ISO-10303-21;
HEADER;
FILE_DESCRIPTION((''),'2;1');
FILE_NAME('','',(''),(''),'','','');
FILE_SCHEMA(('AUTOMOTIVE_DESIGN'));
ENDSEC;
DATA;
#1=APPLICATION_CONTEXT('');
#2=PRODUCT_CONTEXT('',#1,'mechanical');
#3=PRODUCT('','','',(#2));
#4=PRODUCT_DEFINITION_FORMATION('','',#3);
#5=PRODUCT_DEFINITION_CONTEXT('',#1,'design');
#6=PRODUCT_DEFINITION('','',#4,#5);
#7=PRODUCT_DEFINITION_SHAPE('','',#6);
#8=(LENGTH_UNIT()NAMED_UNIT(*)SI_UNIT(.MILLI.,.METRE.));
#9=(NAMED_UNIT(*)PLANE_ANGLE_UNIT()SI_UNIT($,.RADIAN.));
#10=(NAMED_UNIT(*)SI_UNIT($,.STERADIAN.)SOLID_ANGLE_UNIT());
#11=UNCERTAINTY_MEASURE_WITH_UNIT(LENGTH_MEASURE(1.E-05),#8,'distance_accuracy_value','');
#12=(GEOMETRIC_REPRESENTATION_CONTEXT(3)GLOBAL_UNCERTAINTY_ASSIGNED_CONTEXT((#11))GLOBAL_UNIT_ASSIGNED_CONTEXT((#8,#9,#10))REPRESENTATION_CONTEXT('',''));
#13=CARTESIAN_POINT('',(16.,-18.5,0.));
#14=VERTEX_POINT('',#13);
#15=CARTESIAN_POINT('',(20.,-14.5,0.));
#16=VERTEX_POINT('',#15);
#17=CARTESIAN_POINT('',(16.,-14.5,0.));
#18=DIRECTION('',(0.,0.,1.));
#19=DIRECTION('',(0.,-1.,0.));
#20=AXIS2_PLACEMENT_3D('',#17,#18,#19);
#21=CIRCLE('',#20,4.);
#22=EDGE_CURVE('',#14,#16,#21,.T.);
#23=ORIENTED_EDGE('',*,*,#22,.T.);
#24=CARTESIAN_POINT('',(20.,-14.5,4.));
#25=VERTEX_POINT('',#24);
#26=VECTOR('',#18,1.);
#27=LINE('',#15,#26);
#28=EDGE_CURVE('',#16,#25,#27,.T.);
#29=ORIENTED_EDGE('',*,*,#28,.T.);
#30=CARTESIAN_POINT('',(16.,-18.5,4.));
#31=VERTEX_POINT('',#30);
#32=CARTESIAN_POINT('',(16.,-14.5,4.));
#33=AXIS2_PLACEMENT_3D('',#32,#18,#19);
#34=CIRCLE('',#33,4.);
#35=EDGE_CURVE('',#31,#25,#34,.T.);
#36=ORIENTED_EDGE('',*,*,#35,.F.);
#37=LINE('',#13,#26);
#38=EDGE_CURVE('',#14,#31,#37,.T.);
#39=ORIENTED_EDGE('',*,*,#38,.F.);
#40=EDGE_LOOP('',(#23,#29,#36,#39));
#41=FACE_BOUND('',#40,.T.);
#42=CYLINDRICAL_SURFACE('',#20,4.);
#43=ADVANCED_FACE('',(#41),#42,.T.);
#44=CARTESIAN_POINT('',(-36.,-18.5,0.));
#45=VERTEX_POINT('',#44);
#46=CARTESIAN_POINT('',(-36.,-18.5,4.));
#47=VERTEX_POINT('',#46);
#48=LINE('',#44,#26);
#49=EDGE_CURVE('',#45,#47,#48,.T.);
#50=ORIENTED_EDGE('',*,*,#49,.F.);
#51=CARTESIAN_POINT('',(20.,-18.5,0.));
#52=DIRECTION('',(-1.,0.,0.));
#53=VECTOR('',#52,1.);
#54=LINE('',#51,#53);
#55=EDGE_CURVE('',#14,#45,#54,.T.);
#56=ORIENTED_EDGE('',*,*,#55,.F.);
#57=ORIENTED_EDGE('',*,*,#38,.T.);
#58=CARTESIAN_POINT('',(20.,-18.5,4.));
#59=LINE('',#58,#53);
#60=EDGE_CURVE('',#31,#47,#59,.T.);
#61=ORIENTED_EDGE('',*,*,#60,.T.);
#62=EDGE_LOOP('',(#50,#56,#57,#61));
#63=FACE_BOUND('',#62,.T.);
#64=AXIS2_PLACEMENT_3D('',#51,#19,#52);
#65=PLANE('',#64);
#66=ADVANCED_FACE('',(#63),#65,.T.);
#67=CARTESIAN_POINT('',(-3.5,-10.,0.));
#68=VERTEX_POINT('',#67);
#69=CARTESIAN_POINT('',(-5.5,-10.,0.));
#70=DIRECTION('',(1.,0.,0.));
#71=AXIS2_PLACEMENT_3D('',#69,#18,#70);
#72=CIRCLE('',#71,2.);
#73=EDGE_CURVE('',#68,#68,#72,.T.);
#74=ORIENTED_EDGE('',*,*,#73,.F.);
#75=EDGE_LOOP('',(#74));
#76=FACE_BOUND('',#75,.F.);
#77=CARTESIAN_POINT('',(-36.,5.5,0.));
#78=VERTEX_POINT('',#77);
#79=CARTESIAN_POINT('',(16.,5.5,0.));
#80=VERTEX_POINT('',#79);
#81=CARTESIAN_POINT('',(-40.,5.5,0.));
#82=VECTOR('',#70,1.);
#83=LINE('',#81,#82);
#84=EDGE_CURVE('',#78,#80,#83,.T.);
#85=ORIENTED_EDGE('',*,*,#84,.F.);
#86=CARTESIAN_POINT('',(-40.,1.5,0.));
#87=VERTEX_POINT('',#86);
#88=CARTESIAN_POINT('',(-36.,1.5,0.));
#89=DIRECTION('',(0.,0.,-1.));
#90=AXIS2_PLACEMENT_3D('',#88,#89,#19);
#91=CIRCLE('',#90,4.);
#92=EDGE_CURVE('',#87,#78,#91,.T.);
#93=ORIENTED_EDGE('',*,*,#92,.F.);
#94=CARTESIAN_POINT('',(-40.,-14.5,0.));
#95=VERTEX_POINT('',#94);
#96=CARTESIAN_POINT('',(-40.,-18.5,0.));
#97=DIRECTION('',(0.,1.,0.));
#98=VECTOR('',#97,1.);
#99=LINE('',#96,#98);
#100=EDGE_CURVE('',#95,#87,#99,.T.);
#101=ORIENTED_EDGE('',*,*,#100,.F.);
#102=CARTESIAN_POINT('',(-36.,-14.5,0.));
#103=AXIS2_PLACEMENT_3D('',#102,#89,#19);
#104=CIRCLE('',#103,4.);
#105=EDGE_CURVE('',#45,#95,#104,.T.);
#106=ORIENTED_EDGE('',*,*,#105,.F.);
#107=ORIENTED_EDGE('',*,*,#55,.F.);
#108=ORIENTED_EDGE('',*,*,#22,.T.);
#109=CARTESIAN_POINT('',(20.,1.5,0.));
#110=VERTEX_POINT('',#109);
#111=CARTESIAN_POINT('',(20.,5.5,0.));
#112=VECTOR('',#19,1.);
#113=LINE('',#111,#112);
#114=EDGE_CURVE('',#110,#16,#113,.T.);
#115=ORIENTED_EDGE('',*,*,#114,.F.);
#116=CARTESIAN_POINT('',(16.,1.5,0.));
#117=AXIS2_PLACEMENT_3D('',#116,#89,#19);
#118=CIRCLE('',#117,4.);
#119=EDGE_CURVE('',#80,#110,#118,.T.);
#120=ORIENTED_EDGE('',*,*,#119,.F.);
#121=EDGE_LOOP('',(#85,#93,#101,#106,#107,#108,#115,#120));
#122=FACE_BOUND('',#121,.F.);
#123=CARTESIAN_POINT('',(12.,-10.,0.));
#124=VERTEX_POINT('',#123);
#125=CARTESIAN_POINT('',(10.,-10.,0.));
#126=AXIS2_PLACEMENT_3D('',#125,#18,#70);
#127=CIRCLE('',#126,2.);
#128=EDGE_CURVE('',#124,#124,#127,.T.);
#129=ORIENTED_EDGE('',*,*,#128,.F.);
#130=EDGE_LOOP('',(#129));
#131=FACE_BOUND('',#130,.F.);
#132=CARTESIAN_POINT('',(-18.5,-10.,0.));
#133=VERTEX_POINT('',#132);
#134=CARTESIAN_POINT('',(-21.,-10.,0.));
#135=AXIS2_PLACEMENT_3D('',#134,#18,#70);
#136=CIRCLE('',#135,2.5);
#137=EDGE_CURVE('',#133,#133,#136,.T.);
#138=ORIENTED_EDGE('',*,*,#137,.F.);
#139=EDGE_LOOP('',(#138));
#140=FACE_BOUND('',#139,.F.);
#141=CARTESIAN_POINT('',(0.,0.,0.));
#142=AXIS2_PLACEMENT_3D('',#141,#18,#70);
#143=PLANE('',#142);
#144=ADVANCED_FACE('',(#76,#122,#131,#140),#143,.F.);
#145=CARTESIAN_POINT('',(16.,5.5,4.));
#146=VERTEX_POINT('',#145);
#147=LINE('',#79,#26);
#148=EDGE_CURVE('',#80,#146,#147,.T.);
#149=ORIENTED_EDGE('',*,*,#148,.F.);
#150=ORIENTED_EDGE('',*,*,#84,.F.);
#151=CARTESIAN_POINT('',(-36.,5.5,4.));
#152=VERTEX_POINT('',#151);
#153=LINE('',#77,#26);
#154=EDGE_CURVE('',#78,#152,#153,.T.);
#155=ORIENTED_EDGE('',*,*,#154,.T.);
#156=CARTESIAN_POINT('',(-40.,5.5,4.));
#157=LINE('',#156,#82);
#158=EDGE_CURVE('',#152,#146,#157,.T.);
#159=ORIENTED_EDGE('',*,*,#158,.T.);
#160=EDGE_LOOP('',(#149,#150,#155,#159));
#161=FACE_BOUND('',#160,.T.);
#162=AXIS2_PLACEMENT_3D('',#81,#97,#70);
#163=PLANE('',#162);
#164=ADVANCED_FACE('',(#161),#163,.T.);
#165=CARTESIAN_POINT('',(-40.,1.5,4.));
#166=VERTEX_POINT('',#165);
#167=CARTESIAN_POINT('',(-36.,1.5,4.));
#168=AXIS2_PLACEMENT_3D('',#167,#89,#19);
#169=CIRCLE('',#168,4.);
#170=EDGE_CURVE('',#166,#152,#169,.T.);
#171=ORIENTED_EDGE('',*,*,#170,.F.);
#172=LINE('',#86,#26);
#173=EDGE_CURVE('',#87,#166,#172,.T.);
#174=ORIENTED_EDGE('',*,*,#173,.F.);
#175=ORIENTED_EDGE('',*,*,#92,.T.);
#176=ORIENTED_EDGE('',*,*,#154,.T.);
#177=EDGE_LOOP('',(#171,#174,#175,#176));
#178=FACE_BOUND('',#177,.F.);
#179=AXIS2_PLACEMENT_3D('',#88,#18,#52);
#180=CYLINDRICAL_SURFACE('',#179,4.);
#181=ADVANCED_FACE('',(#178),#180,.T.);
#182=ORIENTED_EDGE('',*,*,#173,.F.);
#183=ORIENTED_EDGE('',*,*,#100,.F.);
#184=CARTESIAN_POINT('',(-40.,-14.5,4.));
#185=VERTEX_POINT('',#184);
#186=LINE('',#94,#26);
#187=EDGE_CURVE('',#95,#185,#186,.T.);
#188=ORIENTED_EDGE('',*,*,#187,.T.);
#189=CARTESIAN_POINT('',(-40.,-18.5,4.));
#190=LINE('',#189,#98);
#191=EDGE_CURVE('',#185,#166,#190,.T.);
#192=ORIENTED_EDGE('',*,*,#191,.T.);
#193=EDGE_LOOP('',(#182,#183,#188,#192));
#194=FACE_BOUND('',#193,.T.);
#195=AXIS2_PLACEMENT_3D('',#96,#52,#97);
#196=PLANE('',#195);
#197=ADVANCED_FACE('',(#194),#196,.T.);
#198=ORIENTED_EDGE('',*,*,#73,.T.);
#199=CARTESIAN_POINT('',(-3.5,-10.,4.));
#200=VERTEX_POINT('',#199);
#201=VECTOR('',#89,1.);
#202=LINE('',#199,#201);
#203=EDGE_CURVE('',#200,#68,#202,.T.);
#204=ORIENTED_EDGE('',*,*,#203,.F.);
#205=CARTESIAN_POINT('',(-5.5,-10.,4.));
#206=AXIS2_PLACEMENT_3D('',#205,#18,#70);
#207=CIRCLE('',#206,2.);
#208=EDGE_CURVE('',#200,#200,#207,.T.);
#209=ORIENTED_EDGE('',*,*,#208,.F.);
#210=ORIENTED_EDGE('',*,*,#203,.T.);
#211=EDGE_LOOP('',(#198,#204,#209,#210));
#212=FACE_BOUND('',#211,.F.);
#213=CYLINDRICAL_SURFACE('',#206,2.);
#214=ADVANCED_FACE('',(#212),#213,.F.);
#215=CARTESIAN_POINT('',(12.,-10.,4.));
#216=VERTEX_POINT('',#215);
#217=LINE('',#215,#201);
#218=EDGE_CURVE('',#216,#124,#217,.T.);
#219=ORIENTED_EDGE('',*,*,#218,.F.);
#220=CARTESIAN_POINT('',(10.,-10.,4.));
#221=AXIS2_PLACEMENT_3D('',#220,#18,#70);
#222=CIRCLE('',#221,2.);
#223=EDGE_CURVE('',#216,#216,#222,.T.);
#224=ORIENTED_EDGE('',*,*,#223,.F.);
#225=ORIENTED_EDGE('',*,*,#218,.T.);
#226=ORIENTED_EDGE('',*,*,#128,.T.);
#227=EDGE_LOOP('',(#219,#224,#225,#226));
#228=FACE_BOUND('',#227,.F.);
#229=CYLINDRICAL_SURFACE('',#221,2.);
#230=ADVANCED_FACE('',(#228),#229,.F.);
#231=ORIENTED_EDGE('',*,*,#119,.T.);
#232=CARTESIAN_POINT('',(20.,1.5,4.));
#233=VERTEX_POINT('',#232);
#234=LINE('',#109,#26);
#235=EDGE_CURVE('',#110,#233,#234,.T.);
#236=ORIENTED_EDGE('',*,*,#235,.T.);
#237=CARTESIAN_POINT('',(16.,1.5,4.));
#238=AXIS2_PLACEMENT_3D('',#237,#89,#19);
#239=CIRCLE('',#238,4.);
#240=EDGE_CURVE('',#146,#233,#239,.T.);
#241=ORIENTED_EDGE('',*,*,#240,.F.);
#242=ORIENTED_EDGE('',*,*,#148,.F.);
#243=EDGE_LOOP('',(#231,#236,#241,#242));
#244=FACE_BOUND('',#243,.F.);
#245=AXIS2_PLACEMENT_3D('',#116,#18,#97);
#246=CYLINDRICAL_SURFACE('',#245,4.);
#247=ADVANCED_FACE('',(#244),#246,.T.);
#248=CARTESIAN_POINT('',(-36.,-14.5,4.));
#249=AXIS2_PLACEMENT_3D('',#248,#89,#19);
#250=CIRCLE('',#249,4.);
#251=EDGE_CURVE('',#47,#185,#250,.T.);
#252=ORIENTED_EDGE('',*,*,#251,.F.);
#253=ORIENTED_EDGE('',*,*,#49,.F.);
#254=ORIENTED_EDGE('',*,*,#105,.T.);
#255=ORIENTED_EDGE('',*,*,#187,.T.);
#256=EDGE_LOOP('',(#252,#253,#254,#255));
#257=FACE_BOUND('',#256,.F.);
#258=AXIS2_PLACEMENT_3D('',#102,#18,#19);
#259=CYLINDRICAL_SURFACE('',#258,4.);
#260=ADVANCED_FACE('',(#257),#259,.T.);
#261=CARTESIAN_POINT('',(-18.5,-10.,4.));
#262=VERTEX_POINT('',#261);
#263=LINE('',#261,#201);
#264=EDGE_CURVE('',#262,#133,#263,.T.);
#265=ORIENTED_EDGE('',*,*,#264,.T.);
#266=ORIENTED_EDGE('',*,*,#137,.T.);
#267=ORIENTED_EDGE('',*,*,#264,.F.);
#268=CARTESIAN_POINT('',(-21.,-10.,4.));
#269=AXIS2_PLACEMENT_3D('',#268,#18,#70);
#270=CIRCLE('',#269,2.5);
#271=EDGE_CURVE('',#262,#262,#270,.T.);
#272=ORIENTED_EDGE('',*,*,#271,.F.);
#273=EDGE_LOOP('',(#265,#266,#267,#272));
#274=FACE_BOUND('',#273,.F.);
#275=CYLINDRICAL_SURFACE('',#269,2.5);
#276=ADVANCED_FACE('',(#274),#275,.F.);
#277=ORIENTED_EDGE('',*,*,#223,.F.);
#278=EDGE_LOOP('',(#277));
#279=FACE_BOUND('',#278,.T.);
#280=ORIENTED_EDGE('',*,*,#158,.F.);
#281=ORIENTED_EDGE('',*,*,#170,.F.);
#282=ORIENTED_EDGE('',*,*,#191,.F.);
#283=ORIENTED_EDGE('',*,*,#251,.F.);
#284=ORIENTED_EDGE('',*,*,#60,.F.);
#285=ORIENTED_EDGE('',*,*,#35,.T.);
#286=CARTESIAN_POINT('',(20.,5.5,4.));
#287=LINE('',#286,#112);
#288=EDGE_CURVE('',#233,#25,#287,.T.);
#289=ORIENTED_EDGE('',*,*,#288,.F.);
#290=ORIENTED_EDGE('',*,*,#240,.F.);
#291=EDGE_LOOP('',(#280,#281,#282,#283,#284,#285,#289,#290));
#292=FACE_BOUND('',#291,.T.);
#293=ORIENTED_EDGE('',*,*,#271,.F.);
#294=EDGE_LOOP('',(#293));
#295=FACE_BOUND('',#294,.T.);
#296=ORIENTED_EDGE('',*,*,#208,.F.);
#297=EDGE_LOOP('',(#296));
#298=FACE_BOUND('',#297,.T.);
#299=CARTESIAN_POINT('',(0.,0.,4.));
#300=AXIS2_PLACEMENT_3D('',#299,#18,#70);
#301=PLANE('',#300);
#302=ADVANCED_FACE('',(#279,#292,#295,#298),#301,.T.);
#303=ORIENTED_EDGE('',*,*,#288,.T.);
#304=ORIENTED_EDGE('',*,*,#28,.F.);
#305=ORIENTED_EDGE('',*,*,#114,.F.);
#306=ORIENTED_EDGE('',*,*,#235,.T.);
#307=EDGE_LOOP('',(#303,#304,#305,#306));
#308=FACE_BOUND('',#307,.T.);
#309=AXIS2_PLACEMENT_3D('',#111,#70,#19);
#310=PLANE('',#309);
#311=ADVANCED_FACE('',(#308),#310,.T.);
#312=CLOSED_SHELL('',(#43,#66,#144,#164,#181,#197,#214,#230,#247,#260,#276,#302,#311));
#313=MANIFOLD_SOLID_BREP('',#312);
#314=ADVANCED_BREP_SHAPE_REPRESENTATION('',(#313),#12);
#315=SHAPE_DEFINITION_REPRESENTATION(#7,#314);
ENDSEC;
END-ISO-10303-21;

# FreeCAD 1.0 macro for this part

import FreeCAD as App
import Part
import Sketcher


def edges_at(feature, points):
    """Names of the edges that pass closest to the given points."""
    edges = feature.Shape.Edges
    near = lambda p: min(range(len(edges)), key=lambda i: edges[i].distToShape(Part.Vertex(*p))[0])
    return sorted({f"Edge{near(p) + 1}" for p in points})


def add_polygon(sketch, points):
    """Adds a closed chain of lines whose ends are joined by coincident constraints."""
    first, n = sketch.GeometryCount, len(points)
    for a, b in zip(points, points[1:] + points[:1]):
        sketch.addGeometry(Part.LineSegment(App.Vector(*a, 0), App.Vector(*b, 0)), False)
    for i in range(n):
        sketch.addConstraint(Sketcher.Constraint("Coincident", first + i, 2, first + (i + 1) % n, 1))

doc = App.newDocument("Part")
body = doc.addObject("PartDesign::Body", "Body")

sketch1 = body.newObject("Sketcher::SketchObject", "Sketch")
sketch1.AttachmentSupport = (doc.getObject("XY_Plane"), [""])
sketch1.MapMode = "FlatFace"
add_polygon(sketch1, [(-40, -18), (20, -18), (20, 6), (-40, 6)])
sketch1.addConstraint([
    Sketcher.Constraint("Horizontal", 0),
    Sketcher.Constraint("Vertical", 1),
    Sketcher.Constraint("Horizontal", 2),
    Sketcher.Constraint("Vertical", 3),
    Sketcher.Constraint("DistanceX", 0, 1, 0, 2, 60.0),
    Sketcher.Constraint("DistanceY", 1, 1, 1, 2, 24.0),
    Sketcher.Constraint("DistanceX", -1, 1, 0, 2, 20.0),
    Sketcher.Constraint("DistanceY", 0, 2, -1, 1, 18.5),
])
pad1 = body.newObject("PartDesign::Pad", "Pad")
pad1.Profile = sketch1
pad1.Length = 4
doc.recompute()

fillet = body.newObject("PartDesign::Fillet", "Fillet")
fillet.Base = (pad1, edges_at(pad1, [
    (-40, 5.5, 2),
    (-40, -18.5, 2),
    (20, -18.5, 2),
    (20, 5.5, 2),
]))
fillet.Radius = 4

sketch2 = body.newObject("Sketcher::SketchObject", "Sketch001")
sketch2.AttachmentSupport = (doc.getObject("XY_Plane"), [""])
sketch2.MapMode = "FlatFace"
sketch2.AttachmentOffset = App.Placement(App.Vector(0, 0, 4), App.Rotation())
sketch2.addGeometry([
    Part.Circle(App.Vector(-21, -10, 0), App.Vector(0, 0, 1), 2.5),
    Part.Circle(App.Vector(-5.5, -10, 0), App.Vector(0, 0, 1), 2),
    Part.Circle(App.Vector(10, -10, 0), App.Vector(0, 0, 1), 2),
], False)
sketch2.addConstraint([
    Sketcher.Constraint("Equal", 1, 2),
    Sketcher.Constraint("Horizontal", 0, 3, 1, 3),
    Sketcher.Constraint("Horizontal", 1, 3, 2, 3),
    Sketcher.Constraint("Diameter", 0, 5.0),
    Sketcher.Constraint("Diameter", 1, 4.0),
    Sketcher.Constraint("DistanceY", 0, 3, -1, 1, 10.0),
    Sketcher.Constraint("DistanceX", -1, 1, 2, 3, 10.0),
    Sketcher.Constraint("DistanceX", 0, 3, 1, 3, 15.5),
    Sketcher.Constraint("DistanceX", 1, 3, 2, 3, 15.5),
])
pocket1 = body.newObject("PartDesign::Pocket", "Pocket")
pocket1.Profile = sketch2
pocket1.Length = 4

doc.recompute()
